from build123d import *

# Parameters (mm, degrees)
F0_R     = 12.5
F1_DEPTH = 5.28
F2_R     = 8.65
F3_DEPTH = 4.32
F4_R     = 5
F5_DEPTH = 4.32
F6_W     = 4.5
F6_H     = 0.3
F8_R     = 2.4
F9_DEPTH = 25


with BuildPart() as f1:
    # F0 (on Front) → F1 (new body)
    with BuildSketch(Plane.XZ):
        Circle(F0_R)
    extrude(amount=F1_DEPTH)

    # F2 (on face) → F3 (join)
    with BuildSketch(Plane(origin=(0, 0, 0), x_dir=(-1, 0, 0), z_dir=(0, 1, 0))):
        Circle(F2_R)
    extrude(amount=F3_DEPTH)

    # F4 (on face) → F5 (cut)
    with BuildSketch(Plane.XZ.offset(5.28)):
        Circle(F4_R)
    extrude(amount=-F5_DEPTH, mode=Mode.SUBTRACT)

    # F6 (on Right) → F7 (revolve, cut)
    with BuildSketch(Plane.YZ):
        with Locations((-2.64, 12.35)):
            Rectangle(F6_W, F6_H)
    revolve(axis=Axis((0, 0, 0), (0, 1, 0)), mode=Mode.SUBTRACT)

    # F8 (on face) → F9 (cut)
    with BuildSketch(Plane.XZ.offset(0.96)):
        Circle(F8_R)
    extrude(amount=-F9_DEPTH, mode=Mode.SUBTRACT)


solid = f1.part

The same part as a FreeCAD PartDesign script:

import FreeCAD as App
import Part
import Sketcher
Q = App.Units.Quantity


def add_polygon(sketch, points):
    """Adds a closed chain of lines whose ends are joined by coincident constraints."""
    first, n = sketch.GeometryCount, len(points)
    for a, b in zip(points, points[1:] + points[:1]):
        sketch.addGeometry(Part.LineSegment(App.Vector(*a, 0), App.Vector(*b, 0)), False)
    for i in range(n):
        sketch.addConstraint(Sketcher.Constraint("Coincident", first + i, 2, first + (i + 1) % n, 1))

doc = App.newDocument("Part")
body = doc.addObject("PartDesign::Body", "Body")

sketch1 = doc.addObject("Sketcher::SketchObject", "Sketch")
body.addObject(sketch1)
sketch1.AttachmentSupport = (doc.XZ_Plane, [""])
sketch1.MapMode = "FlatFace"
sketch1.addGeometry(Part.Circle(App.Vector(0, 0, 0), App.Vector(0, 0, 1), 12), False)
sketch1.addConstraint([
    Sketcher.Constraint("Coincident", 0, 3, -1, 1),
    Sketcher.Constraint("Diameter", 0, Q("25 mm")),
])
pad1 = doc.addObject("PartDesign::Pad", "Pad")
body.addObject(pad1)
pad1.Profile = sketch1
pad1.Length = 5.28

sketch2 = doc.addObject("Sketcher::SketchObject", "Sketch001")
body.addObject(sketch2)
sketch2.AttachmentSupport = (doc.XZ_Plane, [""])
sketch2.MapMode = "FlatFace"
sketch2.addGeometry(Part.Circle(App.Vector(0, 0, 0), App.Vector(0, 0, 1), 9), False)
sketch2.addConstraint([
    Sketcher.Constraint("Coincident", 0, 3, -1, 1),
    Sketcher.Constraint("Diameter", 0, Q("17.3 mm")),
])
pad2 = doc.addObject("PartDesign::Pad", "Pad001")
body.addObject(pad2)
pad2.Profile = sketch2
pad2.Length = 4.32
pad2.Reversed = True

sketch3 = doc.addObject("Sketcher::SketchObject", "Sketch002")
body.addObject(sketch3)
sketch3.AttachmentSupport = (doc.XZ_Plane, [""])
sketch3.MapMode = "FlatFace"
sketch3.AttachmentOffset = App.Placement(App.Vector(0, 0, 5.28), App.Rotation())
sketch3.addGeometry(Part.Circle(App.Vector(0, 0, 0), App.Vector(0, 0, 1), 5), False)
sketch3.addConstraint([
    Sketcher.Constraint("Coincident", 0, 3, -1, 1),
    Sketcher.Constraint("Diameter", 0, Q("10 mm")),
])
pocket1 = doc.addObject("PartDesign::Pocket", "Pocket")
body.addObject(pocket1)
pocket1.Profile = sketch3
pocket1.Length = 4.32

sketch4 = doc.addObject("Sketcher::SketchObject", "Sketch003")
body.addObject(sketch4)
sketch4.AttachmentSupport = (doc.YZ_Plane, [""])
sketch4.MapMode = "FlatFace"
add_polygon(sketch4, [(-4.89, 12.5), (-4.89, 12.2), (-0.39, 12.2), (-0.39, 12.5)])
sketch4.addConstraint([
    Sketcher.Constraint("Vertical", 0),
    Sketcher.Constraint("Horizontal", 1),
    Sketcher.Constraint("Vertical", 2),
    Sketcher.Constraint("Horizontal", 3),
    Sketcher.Constraint("DistanceX", 1, 1, 1, 2, Q("4.5 mm")),
    Sketcher.Constraint("DistanceY", 0, 2, 0, 1, Q("0.3 mm")),
    Sketcher.Constraint("DistanceY", -1, 1, 0, 2, Q("12.2 mm")),
    Sketcher.Constraint("DistanceX", 0, 2, -1, 1, Q("4.89 mm")),
])
groove = doc.addObject("PartDesign::Groove", "Groove")
body.addObject(groove)
groove.Profile = sketch4
groove.ReferenceAxis = (sketch4, ["H_Axis"])
groove.Angle = 360

sketch5 = doc.addObject("Sketcher::SketchObject", "Sketch004")
body.addObject(sketch5)
sketch5.AttachmentSupport = (doc.XZ_Plane, [""])
sketch5.MapMode = "FlatFace"
sketch5.AttachmentOffset = App.Placement(App.Vector(0, 0, 0.96), App.Rotation())
sketch5.addGeometry(Part.Circle(App.Vector(0, 0, 0), App.Vector(0, 0, 1), 2.4), False)
sketch5.addConstraint([
    Sketcher.Constraint("Coincident", 0, 3, -1, 1),
    Sketcher.Constraint("Diameter", 0, Q("4.8 mm")),
])
pocket2 = doc.addObject("PartDesign::Pocket", "Pocket001")
body.addObject(pocket2)
pocket2.Profile = sketch5
pocket2.Length = 25

doc.recompute()
